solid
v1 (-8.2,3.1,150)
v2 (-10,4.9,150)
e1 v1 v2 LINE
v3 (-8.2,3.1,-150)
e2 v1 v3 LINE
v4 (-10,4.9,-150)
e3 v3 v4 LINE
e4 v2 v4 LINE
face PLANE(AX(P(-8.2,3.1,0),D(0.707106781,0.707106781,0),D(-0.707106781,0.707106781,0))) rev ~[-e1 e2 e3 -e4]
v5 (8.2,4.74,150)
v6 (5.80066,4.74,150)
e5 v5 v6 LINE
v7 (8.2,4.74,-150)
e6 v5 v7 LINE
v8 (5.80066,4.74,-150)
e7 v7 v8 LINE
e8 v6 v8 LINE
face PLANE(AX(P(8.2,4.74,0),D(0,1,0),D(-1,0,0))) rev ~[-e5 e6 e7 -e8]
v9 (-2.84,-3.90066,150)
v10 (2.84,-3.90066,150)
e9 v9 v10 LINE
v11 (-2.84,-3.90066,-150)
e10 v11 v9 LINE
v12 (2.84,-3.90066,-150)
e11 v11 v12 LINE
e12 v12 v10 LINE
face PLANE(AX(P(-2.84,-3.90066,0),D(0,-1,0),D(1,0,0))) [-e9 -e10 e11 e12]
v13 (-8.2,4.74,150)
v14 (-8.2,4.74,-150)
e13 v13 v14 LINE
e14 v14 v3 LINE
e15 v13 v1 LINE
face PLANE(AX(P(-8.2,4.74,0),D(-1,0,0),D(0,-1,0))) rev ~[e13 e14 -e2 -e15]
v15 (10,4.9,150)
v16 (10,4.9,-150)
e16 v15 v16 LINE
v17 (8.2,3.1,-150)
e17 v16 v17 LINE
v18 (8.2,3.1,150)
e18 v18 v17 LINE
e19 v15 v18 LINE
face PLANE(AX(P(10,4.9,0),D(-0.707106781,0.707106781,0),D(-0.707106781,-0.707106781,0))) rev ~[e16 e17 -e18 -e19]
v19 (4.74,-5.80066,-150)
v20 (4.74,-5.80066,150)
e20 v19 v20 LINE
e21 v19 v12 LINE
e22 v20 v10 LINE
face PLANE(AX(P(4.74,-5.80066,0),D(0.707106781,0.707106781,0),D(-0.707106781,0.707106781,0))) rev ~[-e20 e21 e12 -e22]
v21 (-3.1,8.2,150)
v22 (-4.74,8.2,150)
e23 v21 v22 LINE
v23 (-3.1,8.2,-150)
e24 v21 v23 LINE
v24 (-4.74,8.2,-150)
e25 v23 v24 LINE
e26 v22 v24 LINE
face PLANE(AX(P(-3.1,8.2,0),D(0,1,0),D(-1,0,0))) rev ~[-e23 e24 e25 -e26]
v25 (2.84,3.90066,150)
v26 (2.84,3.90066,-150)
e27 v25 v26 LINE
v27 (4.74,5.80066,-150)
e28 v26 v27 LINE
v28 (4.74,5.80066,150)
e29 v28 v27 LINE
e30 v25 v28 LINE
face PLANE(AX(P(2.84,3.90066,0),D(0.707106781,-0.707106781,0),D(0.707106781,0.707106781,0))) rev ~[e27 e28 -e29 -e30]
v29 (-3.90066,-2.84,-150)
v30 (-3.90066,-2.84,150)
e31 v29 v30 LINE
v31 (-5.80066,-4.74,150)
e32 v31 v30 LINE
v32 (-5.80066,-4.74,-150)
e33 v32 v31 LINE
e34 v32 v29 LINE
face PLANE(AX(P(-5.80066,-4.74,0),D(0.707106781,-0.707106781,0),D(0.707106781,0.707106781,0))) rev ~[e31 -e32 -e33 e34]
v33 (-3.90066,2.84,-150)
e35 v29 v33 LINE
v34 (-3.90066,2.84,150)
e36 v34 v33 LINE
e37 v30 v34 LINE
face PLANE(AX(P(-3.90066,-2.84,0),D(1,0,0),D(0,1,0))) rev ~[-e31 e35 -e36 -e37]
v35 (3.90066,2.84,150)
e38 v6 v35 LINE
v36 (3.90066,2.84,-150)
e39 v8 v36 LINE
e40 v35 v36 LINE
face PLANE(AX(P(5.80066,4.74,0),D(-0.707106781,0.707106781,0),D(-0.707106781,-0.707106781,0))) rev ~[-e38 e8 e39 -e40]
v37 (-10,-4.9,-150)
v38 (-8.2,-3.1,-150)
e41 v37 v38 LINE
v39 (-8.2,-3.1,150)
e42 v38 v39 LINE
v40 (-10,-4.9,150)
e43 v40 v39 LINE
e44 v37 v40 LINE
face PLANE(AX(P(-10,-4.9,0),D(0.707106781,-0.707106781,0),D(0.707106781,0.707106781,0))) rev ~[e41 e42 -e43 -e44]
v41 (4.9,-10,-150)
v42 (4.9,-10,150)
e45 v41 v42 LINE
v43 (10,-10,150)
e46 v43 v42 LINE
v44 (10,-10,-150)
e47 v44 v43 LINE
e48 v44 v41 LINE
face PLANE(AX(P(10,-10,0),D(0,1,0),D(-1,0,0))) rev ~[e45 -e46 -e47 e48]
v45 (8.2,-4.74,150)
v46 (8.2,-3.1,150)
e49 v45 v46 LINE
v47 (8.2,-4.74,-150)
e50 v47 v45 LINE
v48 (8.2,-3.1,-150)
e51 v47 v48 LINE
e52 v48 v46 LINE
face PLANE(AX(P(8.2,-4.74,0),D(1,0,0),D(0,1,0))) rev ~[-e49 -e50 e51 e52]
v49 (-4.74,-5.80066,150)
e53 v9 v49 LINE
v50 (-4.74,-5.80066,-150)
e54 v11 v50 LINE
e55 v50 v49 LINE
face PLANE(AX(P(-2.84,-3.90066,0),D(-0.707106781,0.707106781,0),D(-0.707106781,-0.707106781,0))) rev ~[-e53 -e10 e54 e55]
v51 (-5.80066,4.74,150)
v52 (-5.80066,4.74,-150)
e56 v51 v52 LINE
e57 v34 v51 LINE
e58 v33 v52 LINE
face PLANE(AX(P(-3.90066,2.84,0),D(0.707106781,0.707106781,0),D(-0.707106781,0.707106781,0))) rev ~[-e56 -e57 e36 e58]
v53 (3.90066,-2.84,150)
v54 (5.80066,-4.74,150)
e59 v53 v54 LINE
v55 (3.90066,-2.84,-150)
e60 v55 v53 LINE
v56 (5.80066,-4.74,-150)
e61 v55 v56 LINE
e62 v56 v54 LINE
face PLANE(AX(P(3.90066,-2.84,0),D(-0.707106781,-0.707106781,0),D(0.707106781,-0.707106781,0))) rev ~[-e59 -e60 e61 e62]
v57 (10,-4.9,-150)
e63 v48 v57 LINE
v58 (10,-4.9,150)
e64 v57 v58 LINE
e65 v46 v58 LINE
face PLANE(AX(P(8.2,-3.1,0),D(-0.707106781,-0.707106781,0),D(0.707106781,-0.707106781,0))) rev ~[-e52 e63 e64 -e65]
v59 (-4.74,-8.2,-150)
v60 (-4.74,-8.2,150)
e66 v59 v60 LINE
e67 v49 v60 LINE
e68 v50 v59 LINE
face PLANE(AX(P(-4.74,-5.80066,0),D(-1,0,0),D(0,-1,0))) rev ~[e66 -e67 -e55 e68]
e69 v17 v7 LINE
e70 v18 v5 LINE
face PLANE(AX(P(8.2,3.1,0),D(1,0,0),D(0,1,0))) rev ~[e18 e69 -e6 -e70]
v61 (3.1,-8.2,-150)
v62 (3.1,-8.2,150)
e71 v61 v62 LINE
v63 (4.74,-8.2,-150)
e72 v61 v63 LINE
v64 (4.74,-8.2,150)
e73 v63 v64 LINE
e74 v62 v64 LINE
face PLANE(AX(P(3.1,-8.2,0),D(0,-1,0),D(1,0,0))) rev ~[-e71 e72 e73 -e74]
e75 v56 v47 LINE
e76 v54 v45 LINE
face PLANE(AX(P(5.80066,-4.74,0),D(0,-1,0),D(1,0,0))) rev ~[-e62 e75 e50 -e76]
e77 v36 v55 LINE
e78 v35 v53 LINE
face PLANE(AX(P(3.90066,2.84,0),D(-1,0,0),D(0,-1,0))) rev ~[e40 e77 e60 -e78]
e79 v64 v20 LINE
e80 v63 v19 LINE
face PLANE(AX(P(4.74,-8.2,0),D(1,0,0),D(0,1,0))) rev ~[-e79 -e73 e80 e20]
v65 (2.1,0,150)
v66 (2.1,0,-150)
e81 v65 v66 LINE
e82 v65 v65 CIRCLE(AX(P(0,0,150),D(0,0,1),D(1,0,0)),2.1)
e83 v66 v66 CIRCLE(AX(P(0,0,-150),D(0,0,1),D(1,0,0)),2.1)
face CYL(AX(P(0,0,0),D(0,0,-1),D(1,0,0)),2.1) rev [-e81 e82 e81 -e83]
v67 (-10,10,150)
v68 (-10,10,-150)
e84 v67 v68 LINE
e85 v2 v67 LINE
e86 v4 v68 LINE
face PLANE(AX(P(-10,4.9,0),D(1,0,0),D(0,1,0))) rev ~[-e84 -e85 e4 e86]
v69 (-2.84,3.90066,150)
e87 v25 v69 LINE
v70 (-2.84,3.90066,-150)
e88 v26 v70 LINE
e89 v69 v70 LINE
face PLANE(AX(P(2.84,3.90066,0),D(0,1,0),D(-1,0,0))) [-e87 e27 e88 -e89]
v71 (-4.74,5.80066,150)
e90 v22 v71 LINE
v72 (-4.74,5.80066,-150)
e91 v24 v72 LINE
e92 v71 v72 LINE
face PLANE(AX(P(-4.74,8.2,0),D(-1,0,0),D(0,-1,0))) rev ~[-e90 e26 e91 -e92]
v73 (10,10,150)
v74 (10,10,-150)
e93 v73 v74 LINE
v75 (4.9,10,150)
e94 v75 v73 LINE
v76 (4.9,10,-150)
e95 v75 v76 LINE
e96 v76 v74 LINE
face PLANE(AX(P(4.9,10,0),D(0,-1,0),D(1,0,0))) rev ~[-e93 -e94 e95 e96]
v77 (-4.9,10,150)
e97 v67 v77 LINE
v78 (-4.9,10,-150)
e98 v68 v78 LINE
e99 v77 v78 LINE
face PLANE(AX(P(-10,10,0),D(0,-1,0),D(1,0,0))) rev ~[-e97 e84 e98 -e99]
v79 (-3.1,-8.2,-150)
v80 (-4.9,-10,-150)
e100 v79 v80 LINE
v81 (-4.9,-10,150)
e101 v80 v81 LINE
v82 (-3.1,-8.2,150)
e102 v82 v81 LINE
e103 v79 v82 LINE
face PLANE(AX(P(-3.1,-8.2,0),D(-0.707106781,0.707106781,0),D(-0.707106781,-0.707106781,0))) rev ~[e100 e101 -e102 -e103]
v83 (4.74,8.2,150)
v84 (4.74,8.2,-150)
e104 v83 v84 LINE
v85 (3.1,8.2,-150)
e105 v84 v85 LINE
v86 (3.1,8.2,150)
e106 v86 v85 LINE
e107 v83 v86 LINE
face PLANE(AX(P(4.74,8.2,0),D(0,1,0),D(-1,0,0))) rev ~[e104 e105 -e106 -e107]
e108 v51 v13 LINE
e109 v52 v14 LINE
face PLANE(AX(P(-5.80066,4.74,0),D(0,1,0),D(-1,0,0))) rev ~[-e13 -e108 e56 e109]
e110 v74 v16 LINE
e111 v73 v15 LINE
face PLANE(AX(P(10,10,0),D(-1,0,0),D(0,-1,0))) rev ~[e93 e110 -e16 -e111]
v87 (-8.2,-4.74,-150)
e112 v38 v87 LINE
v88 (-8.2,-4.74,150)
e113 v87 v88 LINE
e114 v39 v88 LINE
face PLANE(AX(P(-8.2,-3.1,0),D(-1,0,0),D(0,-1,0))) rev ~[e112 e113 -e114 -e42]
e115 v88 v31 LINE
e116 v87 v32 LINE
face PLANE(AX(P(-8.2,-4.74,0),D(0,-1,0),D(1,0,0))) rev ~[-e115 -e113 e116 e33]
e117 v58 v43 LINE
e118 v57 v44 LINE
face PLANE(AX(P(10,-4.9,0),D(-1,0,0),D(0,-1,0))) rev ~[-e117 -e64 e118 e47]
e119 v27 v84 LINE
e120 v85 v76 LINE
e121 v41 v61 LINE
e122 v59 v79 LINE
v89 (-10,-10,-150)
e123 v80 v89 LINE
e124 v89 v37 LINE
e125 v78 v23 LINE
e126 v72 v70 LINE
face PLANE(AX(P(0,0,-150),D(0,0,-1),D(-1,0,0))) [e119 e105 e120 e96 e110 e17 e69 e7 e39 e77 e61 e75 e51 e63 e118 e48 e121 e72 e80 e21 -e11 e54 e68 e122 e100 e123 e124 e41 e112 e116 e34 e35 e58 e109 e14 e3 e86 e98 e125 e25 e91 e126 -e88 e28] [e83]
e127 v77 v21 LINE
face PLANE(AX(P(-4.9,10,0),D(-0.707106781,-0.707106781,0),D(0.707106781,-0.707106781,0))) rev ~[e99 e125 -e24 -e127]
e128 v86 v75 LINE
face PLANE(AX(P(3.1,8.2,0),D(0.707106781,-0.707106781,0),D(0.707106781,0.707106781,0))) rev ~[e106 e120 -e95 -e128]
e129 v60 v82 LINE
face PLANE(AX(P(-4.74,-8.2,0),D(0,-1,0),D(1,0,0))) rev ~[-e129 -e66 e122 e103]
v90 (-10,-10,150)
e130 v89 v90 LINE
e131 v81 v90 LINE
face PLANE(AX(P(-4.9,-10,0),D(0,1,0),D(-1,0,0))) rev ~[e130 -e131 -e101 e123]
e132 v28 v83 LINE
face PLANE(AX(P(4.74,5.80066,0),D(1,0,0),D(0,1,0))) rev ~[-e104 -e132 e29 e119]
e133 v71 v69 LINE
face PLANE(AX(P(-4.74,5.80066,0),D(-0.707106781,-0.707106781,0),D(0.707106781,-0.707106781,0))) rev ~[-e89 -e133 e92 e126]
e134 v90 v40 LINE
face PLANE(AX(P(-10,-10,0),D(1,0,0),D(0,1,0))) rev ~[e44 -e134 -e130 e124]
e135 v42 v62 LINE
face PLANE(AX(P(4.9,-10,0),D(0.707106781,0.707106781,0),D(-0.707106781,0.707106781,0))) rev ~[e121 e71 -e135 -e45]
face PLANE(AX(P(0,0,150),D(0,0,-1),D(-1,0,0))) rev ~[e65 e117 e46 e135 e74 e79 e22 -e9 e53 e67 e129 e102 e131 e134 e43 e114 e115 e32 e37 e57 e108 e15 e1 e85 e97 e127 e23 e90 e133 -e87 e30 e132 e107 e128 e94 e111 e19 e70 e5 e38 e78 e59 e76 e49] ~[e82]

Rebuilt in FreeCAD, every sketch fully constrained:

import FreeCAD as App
import Part
import Sketcher
from FreeCAD import Vector


def add_polygon(sketch, points):
    """Adds a closed chain of lines whose ends are joined by coincident constraints."""
    first, n = sketch.GeometryCount, len(points)
    for a, b in zip(points, points[1:] + points[:1]):
        sketch.addGeometry(Part.LineSegment(App.Vector(*a, 0), App.Vector(*b, 0)), False)
    for i in range(n):
        sketch.addConstraint(Sketcher.Constraint("Coincident", first + i, 2, first + (i + 1) % n, 1))

doc = App.newDocument("Part")
body = doc.addObject("PartDesign::Body", "Body")

# Sketch on XY plane
sketch1 = body.newObject("Sketcher::SketchObject", "Sketch")
sketch1.AttachmentSupport = (doc.getObject("XY_Plane"), [""])
sketch1.MapMode = "FlatFace"
add_polygon(sketch1, [(-3.90066, 2.84), (-3.90066, -2.84), (-5.80066, -4.74), (-8.2, -4.74), (-8.2, -3.1), (-10, -4.9), (-10, -10), (-4.9, -10), (-3.1, -8.2), (-4.74, -8.2), (-4.74, -5.80066), (-2.84, -3.90066), (2.84, -3.90066), (4.74, -5.80066), (4.74, -8.2), (3.1, -8.2), (4.9, -10), (10, -10), (10, -4.9), (8.2, -3.1), (8.2, -4.74), (5.80066, -4.74), (3.90066, -2.84), (3.90066, 2.84), (5.80066, 4.74), (8.2, 4.74), (8.2, 3.1), (10, 4.9), (10, 10), (4.9, 10), (3.1, 8.2), (4.74, 8.2), (4.74, 5.80066), (2.84, 3.90066), (-2.84, 3.90066), (-4.74, 5.80066), (-4.74, 8.2), (-3.1, 8.2), (-4.9, 10), (-10, 10), (-10, 4.9), (-8.2, 3.1), (-8.2, 4.74), (-5.80066, 4.74)])  # lines 0-43
sketch1.addGeometry(Part.Circle(Vector(0, 0, 0), Vector(0, 0, 1), 2.1), False)  # 44
sketch1.addConstraint([
    Sketcher.Constraint("Vertical", 0),
    Sketcher.Constraint("Horizontal", 2),
    Sketcher.Constraint("Vertical", 3),
    Sketcher.Constraint("Vertical", 5),
    Sketcher.Constraint("Horizontal", 6),
    Sketcher.Constraint("Horizontal", 8),
    Sketcher.Constraint("Vertical", 9),
    Sketcher.Constraint("Horizontal", 11),
    Sketcher.Constraint("Vertical", 13),
    Sketcher.Constraint("Horizontal", 14),
    Sketcher.Constraint("Horizontal", 16),
    Sketcher.Constraint("Vertical", 17),
    Sketcher.Constraint("Vertical", 19),
    Sketcher.Constraint("Horizontal", 20),
    Sketcher.Constraint("Vertical", 22),
    Sketcher.Constraint("Horizontal", 24),
    Sketcher.Constraint("Vertical", 25),
    Sketcher.Constraint("Vertical", 27),
    Sketcher.Constraint("Horizontal", 28),
    Sketcher.Constraint("Horizontal", 30),
    Sketcher.Constraint("Vertical", 31),
    Sketcher.Constraint("Horizontal", 33),
    Sketcher.Constraint("Vertical", 35),
    Sketcher.Constraint("Horizontal", 36),
    Sketcher.Constraint("Horizontal", 38),
    Sketcher.Constraint("Vertical", 39),
    Sketcher.Constraint("Vertical", 41),
    Sketcher.Constraint("Horizontal", 42),
    Sketcher.Constraint("Coincident", 44, 3, -1, 1),
    Sketcher.Constraint("Symmetric", 0, 2, 22, 2, -1, 1),
    Sketcher.Constraint("Symmetric", 1, 2, 23, 2, -1, 1),
    Sketcher.Constraint("Symmetric", 3, 2, 25, 2, -1, 1),
    Sketcher.Constraint("Symmetric", 4, 2, 26, 2, -1, 1),
    Sketcher.Constraint("Symmetric", 6, 2, 28, 2, -1, 1),
    Sketcher.Constraint("Symmetric", 7, 2, 29, 2, -1, 1),
    Sketcher.Constraint("Symmetric", 9, 2, 31, 2, -1, 1),
    Sketcher.Constraint("Symmetric", 10, 2, 32, 2, -1, 1),
    Sketcher.Constraint("Symmetric", 12, 2, 34, 2, -1, 1),
    Sketcher.Constraint("Symmetric", 14, 2, 36, 2, -1, 1),
    Sketcher.Constraint("Symmetric", 15, 2, 37, 2, -1, 1),
    Sketcher.Constraint("Symmetric", 17, 2, 39, 2, -1, 1),
    Sketcher.Constraint("Symmetric", 18, 2, 40, 2, -1, 1),
    Sketcher.Constraint("Symmetric", 20, 2, 42, 2, -1, 1),
    Sketcher.Constraint("Symmetric", 9, 2, 12, 2, -2),
    Sketcher.Constraint("Symmetric", 7, 2, 14, 2, -2),
    Sketcher.Constraint("Symmetric", 6, 2, 15, 2, -2),
    Sketcher.Constraint("Symmetric", 4, 2, 17, 2, -2),
    Sketcher.Constraint("Symmetric", 3, 2, 18, 2, -2),
    Sketcher.Constraint("Symmetric", 1, 2, 20, 2, -2),
    Sketcher.Constraint("Parallel", 1, 4),
    Sketcher.Constraint("Parallel", 4, 7),
    Sketcher.Constraint("Parallel", 7, 10),
    Sketcher.Constraint("Perpendicular", 10, 12),
    Sketcher.Constraint("Parallel", 12, 15),
    Sketcher.Constraint("Parallel", 18, 21),
    Sketcher.Constraint("Perpendicular", 32, 34),
    Sketcher.Constraint("Parallel", 40, 43),
    Sketcher.Constraint("Equal", 33, 0),
    Sketcher.Constraint("Equal", 36, 3),
    Sketcher.Constraint("Equal", 38, 5),
    Sketcher.Constraint("Equal", 42, 9),
    Sketcher.Constraint("Equal", 4, 7),
    Sketcher.Constraint("Equal", 1, 10),
    Sketcher.Constraint("Diameter", 44, 4.2),
    Sketcher.Constraint("DistanceX", 6, 1, 6, 2, 5.1),
    Sketcher.Constraint("DistanceX", 4, 2, -1, 1, 10.0),
    Sketcher.Constraint("DistanceX", 7, 2, 15, 2, 8.0),
    Sketcher.Constraint("DistanceX", 8, 2, 8, 1, 1.64),
    Sketcher.Constraint("DistanceX", 11, 1, 11, 2, 5.68),
    Sketcher.Constraint("DistanceX", 2, 2, 2, 1, 2.39934),
])
pad1 = body.newObject("PartDesign::Pad", "Pad")
pad1.Profile = sketch1
pad1.Length = 300
pad1.Midplane = True

doc.recompute()
